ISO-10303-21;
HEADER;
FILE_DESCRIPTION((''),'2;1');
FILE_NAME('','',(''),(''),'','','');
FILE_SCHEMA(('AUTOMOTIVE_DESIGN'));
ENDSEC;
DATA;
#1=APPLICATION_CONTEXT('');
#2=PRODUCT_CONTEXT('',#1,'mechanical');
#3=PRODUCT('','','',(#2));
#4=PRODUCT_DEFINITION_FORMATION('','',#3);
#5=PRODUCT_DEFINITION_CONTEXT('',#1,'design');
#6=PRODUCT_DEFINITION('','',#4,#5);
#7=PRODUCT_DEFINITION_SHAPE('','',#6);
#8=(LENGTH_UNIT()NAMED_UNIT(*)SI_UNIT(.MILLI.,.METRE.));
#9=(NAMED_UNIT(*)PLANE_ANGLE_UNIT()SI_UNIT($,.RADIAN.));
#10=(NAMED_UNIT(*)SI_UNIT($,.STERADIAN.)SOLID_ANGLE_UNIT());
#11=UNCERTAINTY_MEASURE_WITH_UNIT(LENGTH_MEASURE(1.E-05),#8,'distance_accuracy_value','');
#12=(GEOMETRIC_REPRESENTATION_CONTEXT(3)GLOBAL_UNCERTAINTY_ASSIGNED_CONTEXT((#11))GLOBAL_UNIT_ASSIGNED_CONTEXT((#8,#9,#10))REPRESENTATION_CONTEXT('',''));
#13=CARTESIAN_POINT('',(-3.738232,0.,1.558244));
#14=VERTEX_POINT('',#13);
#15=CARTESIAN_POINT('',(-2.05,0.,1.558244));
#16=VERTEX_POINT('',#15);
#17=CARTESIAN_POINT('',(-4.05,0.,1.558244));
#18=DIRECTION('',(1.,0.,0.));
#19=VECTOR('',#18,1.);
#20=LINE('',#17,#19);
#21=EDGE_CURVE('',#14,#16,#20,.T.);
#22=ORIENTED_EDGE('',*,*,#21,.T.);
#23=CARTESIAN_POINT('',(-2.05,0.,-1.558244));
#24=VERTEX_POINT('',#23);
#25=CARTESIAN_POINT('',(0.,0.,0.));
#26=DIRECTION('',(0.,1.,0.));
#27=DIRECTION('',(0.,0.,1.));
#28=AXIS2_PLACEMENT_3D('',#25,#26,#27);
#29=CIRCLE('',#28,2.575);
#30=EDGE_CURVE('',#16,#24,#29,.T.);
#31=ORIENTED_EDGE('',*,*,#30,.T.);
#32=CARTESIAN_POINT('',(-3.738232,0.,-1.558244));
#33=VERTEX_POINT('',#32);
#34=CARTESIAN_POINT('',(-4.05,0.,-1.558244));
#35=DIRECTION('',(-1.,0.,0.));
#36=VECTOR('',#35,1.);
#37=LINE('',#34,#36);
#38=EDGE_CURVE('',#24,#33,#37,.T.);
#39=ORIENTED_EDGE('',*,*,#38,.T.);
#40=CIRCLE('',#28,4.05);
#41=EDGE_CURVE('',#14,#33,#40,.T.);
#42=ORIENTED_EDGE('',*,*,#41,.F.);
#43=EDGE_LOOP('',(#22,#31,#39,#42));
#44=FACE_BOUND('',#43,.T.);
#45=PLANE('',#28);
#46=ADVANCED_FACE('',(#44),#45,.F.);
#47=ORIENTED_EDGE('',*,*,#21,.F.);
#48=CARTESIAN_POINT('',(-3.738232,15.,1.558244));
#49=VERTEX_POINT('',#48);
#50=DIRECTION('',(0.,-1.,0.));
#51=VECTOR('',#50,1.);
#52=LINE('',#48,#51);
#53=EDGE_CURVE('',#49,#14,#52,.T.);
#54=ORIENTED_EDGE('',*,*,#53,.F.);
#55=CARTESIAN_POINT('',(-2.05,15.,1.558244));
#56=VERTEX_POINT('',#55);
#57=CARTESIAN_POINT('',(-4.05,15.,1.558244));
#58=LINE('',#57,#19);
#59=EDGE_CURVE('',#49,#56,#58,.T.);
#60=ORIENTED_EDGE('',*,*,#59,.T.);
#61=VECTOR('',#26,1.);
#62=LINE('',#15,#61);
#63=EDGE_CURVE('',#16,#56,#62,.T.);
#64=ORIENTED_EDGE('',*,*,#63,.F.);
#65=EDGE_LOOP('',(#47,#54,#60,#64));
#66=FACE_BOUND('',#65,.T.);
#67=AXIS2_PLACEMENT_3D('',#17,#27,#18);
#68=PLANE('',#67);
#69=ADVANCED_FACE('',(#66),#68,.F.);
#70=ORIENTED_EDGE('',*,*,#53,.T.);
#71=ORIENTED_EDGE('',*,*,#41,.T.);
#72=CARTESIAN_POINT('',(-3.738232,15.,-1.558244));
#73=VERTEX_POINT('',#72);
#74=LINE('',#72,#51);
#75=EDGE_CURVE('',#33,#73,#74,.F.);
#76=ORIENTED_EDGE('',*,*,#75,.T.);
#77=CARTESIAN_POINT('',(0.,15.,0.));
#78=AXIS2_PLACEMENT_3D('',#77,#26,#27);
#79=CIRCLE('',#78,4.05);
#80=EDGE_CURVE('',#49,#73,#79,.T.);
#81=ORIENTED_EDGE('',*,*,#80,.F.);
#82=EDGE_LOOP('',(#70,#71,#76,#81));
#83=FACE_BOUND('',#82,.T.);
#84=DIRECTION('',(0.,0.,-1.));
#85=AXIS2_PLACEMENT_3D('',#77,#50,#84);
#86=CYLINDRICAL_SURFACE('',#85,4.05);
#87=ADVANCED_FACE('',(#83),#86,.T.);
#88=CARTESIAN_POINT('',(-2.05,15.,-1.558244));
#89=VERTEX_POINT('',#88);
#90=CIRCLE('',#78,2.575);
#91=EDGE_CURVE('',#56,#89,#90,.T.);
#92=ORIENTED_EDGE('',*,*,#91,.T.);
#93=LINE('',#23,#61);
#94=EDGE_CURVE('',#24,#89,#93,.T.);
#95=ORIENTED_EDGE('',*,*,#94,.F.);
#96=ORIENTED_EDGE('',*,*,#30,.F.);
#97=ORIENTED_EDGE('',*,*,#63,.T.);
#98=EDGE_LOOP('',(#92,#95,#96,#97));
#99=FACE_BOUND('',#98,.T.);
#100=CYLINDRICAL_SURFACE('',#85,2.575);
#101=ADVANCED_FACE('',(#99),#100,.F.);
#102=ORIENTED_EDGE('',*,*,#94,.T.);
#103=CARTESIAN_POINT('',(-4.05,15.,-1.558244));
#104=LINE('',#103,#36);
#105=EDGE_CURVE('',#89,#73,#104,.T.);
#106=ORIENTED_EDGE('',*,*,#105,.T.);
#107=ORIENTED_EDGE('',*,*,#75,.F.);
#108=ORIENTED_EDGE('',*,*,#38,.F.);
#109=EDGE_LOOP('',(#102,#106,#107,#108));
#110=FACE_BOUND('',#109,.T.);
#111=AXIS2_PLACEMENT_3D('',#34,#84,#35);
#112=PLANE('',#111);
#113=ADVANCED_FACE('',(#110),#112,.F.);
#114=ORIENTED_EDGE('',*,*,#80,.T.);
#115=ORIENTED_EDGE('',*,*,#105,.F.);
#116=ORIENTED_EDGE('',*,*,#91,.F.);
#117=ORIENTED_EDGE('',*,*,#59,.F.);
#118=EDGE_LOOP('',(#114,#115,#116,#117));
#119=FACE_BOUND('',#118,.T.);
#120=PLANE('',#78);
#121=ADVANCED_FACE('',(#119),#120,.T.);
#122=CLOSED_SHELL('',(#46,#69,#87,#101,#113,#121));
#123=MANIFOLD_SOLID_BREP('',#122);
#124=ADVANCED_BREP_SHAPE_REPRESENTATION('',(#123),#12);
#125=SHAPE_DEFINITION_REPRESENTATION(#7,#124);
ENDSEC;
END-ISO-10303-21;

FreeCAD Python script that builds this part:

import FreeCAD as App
import Part
import Sketcher
from FreeCAD import Vector
Q = App.Units.Quantity

doc = App.newDocument("Part")
params = doc.addObject("Spreadsheet::Sheet", "Params")
for row, (alias, value) in enumerate([
    ("sketch1_diameter", "8.1 mm"),
    ("sketch1_diameter2", "5.15 mm"),
    ("pad1_length", "15 mm"),
    ("sketch2_width", "2 mm"),
    ("pocket1_length", "15 mm"),
], start=1):
    params.set(f"A{row}", alias)
    params.set(f"B{row}", "=" + value)
    params.setAlias(f"B{row}", alias)

body = doc.addObject("PartDesign::Body", "Body")

# Sketch on XZ plane
sketch1 = body.newObject("Sketcher::SketchObject", "Sketch")
sketch1.AttachmentSupport = (doc.getObject("XZ_Plane"), [""])
sketch1.MapMode = "FlatFace"
sketch1.addGeometry([
    Part.Circle(Vector(0, 0, 0), Vector(0, 0, 1), 4.05),
    Part.Circle(Vector(0, 0, 0), Vector(0, 0, 1), 2.575),
], False)
sketch1.addConstraint([
    Sketcher.Constraint("Coincident", 0, 3, -1, 1),
    Sketcher.Constraint("Coincident", 1, 3, -1, 1),
    Sketcher.Constraint("Diameter", 0, Q("8.1 mm")),
    Sketcher.Constraint("Diameter", 1, Q("5.15 mm")),
])
sketch1.setExpression("Constraints[2]", "Params.sketch1_diameter")
sketch1.setExpression("Constraints[3]", "Params.sketch1_diameter2")
pad1 = body.newObject("PartDesign::Pad", "Pad")
pad1.Profile = sketch1
pad1.setExpression("Length", "Params.pad1_length")
pad1.Reversed = True

# Sketch on XZ plane
sketch2 = body.newObject("Sketcher::SketchObject", "Sketch001")
sketch2.AttachmentSupport = (doc.getObject("XZ_Plane"), [""])
sketch2.MapMode = "FlatFace"
sketch2.AttachmentOffset = App.Placement(Vector(0, 0, -15), App.Rotation())
sketch2.addGeometry([
    Part.LineSegment(Vector(-4.05, -1.558244, 0), Vector(-4.05, 1.558244, 0)),
    Part.LineSegment(Vector(-4.05, 1.558244, 0), Vector(-2.05, 1.558244, 0)),
    Part.LineSegment(Vector(-2.05, 1.558244, 0), Vector(-2.05, -1.558244, 0)),
    Part.LineSegment(Vector(-2.05, -1.558244, 0), Vector(-4.05, -1.558244, 0)),
], False)
sketch2.addConstraint([
    Sketcher.Constraint("Coincident", 0, 2, 1, 1),
    Sketcher.Constraint("Coincident", 1, 2, 2, 1),
    Sketcher.Constraint("Coincident", 2, 2, 3, 1),
    Sketcher.Constraint("Coincident", 3, 2, 0, 1),
    Sketcher.Constraint("Vertical", 0),
    Sketcher.Constraint("Horizontal", 1),
    Sketcher.Constraint("Vertical", 2),
    Sketcher.Constraint("Horizontal", 3),
    Sketcher.Constraint("DistanceX", 1, 1, 1, 2, Q("2 mm")),
    Sketcher.Constraint("DistanceX", 0, 2, -1, 1, Q("4.05 mm")),
    Sketcher.Constraint("DistanceY", 0, 1, 0, 2, Q("3.116488 mm")),
    Sketcher.Constraint("DistanceY", -1, 1, 0, 2, Q("1.558244 mm")),
])
sketch2.setExpression("Constraints[8]", "Params.sketch2_width")
pocket1 = body.newObject("PartDesign::Pocket", "Pocket")
pocket1.Profile = sketch2
pocket1.setExpression("Length", "Params.pocket1_length")
pocket1.Reversed = True

doc.recompute()
